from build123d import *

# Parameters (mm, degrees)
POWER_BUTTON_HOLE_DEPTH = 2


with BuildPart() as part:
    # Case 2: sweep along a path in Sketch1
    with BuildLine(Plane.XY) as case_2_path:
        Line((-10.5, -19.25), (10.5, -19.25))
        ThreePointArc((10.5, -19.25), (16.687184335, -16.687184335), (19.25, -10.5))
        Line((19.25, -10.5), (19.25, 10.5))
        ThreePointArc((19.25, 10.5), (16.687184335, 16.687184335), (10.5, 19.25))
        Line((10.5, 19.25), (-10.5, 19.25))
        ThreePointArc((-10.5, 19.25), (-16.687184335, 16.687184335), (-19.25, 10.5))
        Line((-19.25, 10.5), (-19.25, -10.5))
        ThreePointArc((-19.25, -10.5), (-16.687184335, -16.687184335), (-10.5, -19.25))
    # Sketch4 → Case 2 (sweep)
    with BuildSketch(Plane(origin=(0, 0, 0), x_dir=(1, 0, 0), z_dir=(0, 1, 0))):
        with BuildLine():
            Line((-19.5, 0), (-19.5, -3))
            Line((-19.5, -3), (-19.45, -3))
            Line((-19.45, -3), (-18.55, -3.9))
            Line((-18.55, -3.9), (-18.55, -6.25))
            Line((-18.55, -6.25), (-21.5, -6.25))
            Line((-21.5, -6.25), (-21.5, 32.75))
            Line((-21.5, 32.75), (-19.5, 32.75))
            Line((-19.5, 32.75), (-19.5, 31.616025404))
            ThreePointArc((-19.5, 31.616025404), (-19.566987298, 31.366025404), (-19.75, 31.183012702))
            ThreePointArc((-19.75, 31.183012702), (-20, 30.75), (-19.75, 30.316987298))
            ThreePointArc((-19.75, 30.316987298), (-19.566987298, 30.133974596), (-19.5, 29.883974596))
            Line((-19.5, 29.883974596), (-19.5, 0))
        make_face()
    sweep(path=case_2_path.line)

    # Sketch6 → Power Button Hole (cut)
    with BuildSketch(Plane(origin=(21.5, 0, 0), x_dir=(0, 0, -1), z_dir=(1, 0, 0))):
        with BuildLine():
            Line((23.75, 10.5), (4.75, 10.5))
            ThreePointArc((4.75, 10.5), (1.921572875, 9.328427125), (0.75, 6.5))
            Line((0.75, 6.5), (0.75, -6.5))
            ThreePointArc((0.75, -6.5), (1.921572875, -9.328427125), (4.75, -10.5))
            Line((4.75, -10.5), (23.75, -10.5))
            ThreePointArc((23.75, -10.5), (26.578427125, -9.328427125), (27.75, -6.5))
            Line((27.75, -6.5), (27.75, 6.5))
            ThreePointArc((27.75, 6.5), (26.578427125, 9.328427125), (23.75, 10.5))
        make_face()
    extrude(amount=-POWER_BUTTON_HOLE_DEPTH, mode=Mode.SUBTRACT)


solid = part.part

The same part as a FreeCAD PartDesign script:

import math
import FreeCAD as App
import Part
import Sketcher
from FreeCAD import Vector
Q = App.Units.Quantity

doc = App.newDocument("Part")
body = doc.addObject("PartDesign::Body", "Body")

# Sketch on XZ plane
sketch1 = body.newObject("Sketcher::SketchObject", "Sketch")
sketch1.AttachmentSupport = (doc.getObject("XZ_Plane"), [""])
sketch1.MapMode = "FlatFace"
sketch1.addGeometry([
    Part.LineSegment(Vector(-19.45, 3, 0), Vector(-19.5, 3, 0)),  # 0
    Part.LineSegment(Vector(-19.5, 3, 0), Vector(-19.5, -29.88, 0)),  # 1
    Part.ArcOfCircle(Part.Circle(Vector(-20, -29.88, 0), Vector(0, 0, 1), 0.5), math.radians(-60), math.radians(0)),  # 2
    Part.ArcOfCircle(Part.Circle(Vector(-19.5, -30.75, 0), Vector(0, 0, 1), 0.5), math.radians(120), math.radians(240)),  # 3
    Part.ArcOfCircle(Part.Circle(Vector(-20, -31.62, 0), Vector(0, 0, 1), 0.5), math.radians(0), math.radians(60)),  # 4
    Part.LineSegment(Vector(-19.5, -31.62, 0), Vector(-19.5, -32.75, 0)),  # 5
    Part.LineSegment(Vector(-19.5, -32.75, 0), Vector(-21.5, -32.75, 0)),  # 6
    Part.LineSegment(Vector(-21.5, -32.75, 0), Vector(-21.5, 6.25, 0)),  # 7
    Part.LineSegment(Vector(-21.5, 6.25, 0), Vector(-18.55, 6.25, 0)),  # 8
    Part.LineSegment(Vector(-18.55, 6.25, 0), Vector(-18.55, 3.9, 0)),  # 9
    Part.LineSegment(Vector(-18.55, 3.9, 0), Vector(-19.45, 3, 0)),  # 10
], False)
sketch1.addConstraint([
    Sketcher.Constraint("Coincident", 0, 2, 1, 1),
    Sketcher.Constraint("Tangent", 1, 2, 2, 2),
    Sketcher.Constraint("Tangent", 2, 1, 3, 1),
    Sketcher.Constraint("Tangent", 3, 2, 4, 2),
    Sketcher.Constraint("Tangent", 4, 1, 5, 1),
    Sketcher.Constraint("Coincident", 5, 2, 6, 1),
    Sketcher.Constraint("Coincident", 6, 2, 7, 1),
    Sketcher.Constraint("Coincident", 7, 2, 8, 1),
    Sketcher.Constraint("Coincident", 8, 2, 9, 1),
    Sketcher.Constraint("Coincident", 9, 2, 10, 1),
    Sketcher.Constraint("Coincident", 10, 2, 0, 1),
    Sketcher.Constraint("Horizontal", 0),
    Sketcher.Constraint("Vertical", 1),
    Sketcher.Constraint("Vertical", 5),
    Sketcher.Constraint("Horizontal", 6),
    Sketcher.Constraint("Vertical", 7),
    Sketcher.Constraint("Horizontal", 8),
    Sketcher.Constraint("Vertical", 9),
    Sketcher.Constraint("Equal", 2, 3),
    Sketcher.Constraint("Equal", 3, 4),
    Sketcher.Constraint("Vertical", 2, 3, 4, 3),
    Sketcher.Constraint("Vertical", 3, 3, 0, 2),
    Sketcher.Constraint("Radius", 2, 0.5),
    Sketcher.Constraint("DistanceX", 6, 2, 6, 1, 2.0),
    Sketcher.Constraint("DistanceY", 7, 1, 7, 2, 39.0),
    Sketcher.Constraint("Angle", 10, Q("-135 deg")),
    Sketcher.Constraint("DistanceX", 2, 3, -1, 1, 20.0),
    Sketcher.Constraint("DistanceY", -1, 1, 0, 2, 3.0),
    Sketcher.Constraint("DistanceY", 5, 2, 3, 3, 2.0),
    Sketcher.Constraint("DistanceX", 0, 2, 0, 1, 0.05),
    Sketcher.Constraint("DistanceX", 8, 1, 8, 2, 2.95),
    Sketcher.Constraint("DistanceY", 9, 2, 9, 1, 2.35),
])

# Sketch on XY plane
sketch2 = body.newObject("Sketcher::SketchObject", "Sketch001")
sketch2.AttachmentSupport = (doc.getObject("XY_Plane"), [""])
sketch2.MapMode = "FlatFace"
sketch2.addGeometry([
    Part.LineSegment(Vector(-10, -19, 0), Vector(10, -19, 0)),  # 0
    Part.ArcOfCircle(Part.Circle(Vector(10, -10, 0), Vector(0, 0, 1), 9), math.radians(-90), math.radians(0)),  # 1
    Part.LineSegment(Vector(19, -10, 0), Vector(19, 10, 0)),  # 2
    Part.ArcOfCircle(Part.Circle(Vector(10, 10, 0), Vector(0, 0, 1), 9), math.radians(0), math.radians(90)),  # 3
    Part.LineSegment(Vector(10, 19, 0), Vector(-10, 19, 0)),  # 4
    Part.ArcOfCircle(Part.Circle(Vector(-10, 10, 0), Vector(0, 0, 1), 9), math.radians(90), math.radians(180)),  # 5
    Part.LineSegment(Vector(-19, 10, 0), Vector(-19, -10, 0)),  # 6
    Part.ArcOfCircle(Part.Circle(Vector(-10, -10, 0), Vector(0, 0, 1), 9), math.radians(-180), math.radians(-90)),  # 7
], False)
sketch2.addConstraint([
    Sketcher.Constraint("Tangent", 0, 2, 1, 1),
    Sketcher.Constraint("Tangent", 1, 2, 2, 1),
    Sketcher.Constraint("Tangent", 2, 2, 3, 1),
    Sketcher.Constraint("Tangent", 3, 2, 4, 1),
    Sketcher.Constraint("Tangent", 4, 2, 5, 1),
    Sketcher.Constraint("Tangent", 5, 2, 6, 1),
    Sketcher.Constraint("Tangent", 6, 2, 7, 1),
    Sketcher.Constraint("Tangent", 7, 2, 0, 1),
    Sketcher.Constraint("Horizontal", 0),
    Sketcher.Constraint("Vertical", 2),
    Sketcher.Constraint("Horizontal", 4),
    Sketcher.Constraint("Vertical", 6),
    Sketcher.Constraint("Equal", 1, 3),
    Sketcher.Constraint("Equal", 3, 5),
    Sketcher.Constraint("Equal", 5, 7),
    Sketcher.Constraint("Symmetric", 1, 3, 5, 3, -1, 1),
    Sketcher.Constraint("Equal", 4, 2),
    Sketcher.Constraint("DistanceX", 0, 1, 0, 2, 21.0),
    Sketcher.Constraint("Radius", 1, 8.75),
])
doc.recompute()

additivepipe = body.newObject("PartDesign::AdditivePipe", "AdditivePipe")
additivepipe.Profile = sketch1
additivepipe.Spine = (sketch2, ["Edge1", "Edge2", "Edge3", "Edge4", "Edge5", "Edge6", "Edge7", "Edge8"])

# Sketch on YZ plane
sketch3 = body.newObject("Sketcher::SketchObject", "Sketch002")
sketch3.AttachmentSupport = (doc.getObject("YZ_Plane"), [""])
sketch3.MapMode = "FlatFace"
sketch3.AttachmentOffset = App.Placement(Vector(0, 0, 21.5), App.Rotation())
sketch3.addGeometry([
    Part.LineSegment(Vector(10.5, -23.8, 0), Vector(10.5, -4.8, 0)),  # 0
    Part.ArcOfCircle(Part.Circle(Vector(6.5, -4.7, 0), Vector(0, 0, 1), 4), math.radians(0), math.radians(90)),  # 1
    Part.LineSegment(Vector(6.5, -0.8, 0), Vector(-6.5, -0.8, 0)),  # 2
    Part.ArcOfCircle(Part.Circle(Vector(-6.5, -4.7, 0), Vector(0, 0, 1), 4), math.radians(90), math.radians(180)),  # 3
    Part.LineSegment(Vector(-10.5, -4.8, 0), Vector(-10.5, -23.8, 0)),  # 4
    Part.ArcOfCircle(Part.Circle(Vector(-6.5, -23.8, 0), Vector(0, 0, 1), 4), math.radians(180), math.radians(270)),  # 5
    Part.LineSegment(Vector(-6.5, -27.8, 0), Vector(6.5, -27.8, 0)),  # 6
    Part.ArcOfCircle(Part.Circle(Vector(6.5, -23.8, 0), Vector(0, 0, 1), 4), math.radians(-90), math.radians(0)),  # 7
], False)
sketch3.addConstraint([
    Sketcher.Constraint("Tangent", 0, 2, 1, 1),
    Sketcher.Constraint("Tangent", 1, 2, 2, 1),
    Sketcher.Constraint("Tangent", 2, 2, 3, 1),
    Sketcher.Constraint("Tangent", 3, 2, 4, 1),
    Sketcher.Constraint("Tangent", 4, 2, 5, 1),
    Sketcher.Constraint("Tangent", 5, 2, 6, 1),
    Sketcher.Constraint("Tangent", 6, 2, 7, 1),
    Sketcher.Constraint("Tangent", 7, 2, 0, 1),
    Sketcher.Constraint("Vertical", 0),
    Sketcher.Constraint("Horizontal", 2),
    Sketcher.Constraint("Vertical", 4),
    Sketcher.Constraint("Horizontal", 6),
    Sketcher.Constraint("Equal", 1, 3),
    Sketcher.Constraint("Equal", 3, 5),
    Sketcher.Constraint("Equal", 5, 7),
    Sketcher.Constraint("Radius", 1, 4.0),
    Sketcher.Constraint("DistanceX", 2, 2, 2, 1, 13.0),
    Sketcher.Constraint("DistanceY", 0, 1, 0, 2, 19.0),
    Sketcher.Constraint("DistanceX", -1, 1, 1, 3, 6.5),
    Sketcher.Constraint("DistanceY", 1, 3, -1, 1, 4.75),
])
pocket1 = body.newObject("PartDesign::Pocket", "Pocket")
pocket1.Profile = sketch3
pocket1.Length = 2

doc.recompute()
